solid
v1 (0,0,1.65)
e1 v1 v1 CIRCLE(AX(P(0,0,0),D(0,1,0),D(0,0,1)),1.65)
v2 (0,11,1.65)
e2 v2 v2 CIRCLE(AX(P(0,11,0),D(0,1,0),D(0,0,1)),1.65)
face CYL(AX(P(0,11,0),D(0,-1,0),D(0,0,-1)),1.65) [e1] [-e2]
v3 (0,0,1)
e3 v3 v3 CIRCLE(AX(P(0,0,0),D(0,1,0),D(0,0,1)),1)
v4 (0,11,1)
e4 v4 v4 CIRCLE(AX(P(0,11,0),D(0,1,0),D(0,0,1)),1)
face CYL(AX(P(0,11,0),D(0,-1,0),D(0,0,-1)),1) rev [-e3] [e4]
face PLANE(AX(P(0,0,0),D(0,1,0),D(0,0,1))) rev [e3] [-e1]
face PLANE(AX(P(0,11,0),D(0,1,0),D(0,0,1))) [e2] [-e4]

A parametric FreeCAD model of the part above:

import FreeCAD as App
import Part
import Sketcher

V = App.Vector
Q = App.Units.Quantity

doc = App.newDocument("Part")
params = doc.addObject("Spreadsheet::Sheet", "Params")
for row, (alias, value) in enumerate([
    ("sketch1_diameter", "2 mm"),
    ("sketch1_diameter2", "3.3 mm"),
    ("pad1_length", "11 mm"),
], start=1):
    params.set(f"A{row}", alias)
    params.set(f"B{row}", "=" + value)
    params.setAlias(f"B{row}", alias)

body = doc.addObject("PartDesign::Body", "Body")

sketch1 = body.newObject("Sketcher::SketchObject", "Sketch")
sketch1.AttachmentSupport = (doc.getObject("XZ_Plane"), [""])
sketch1.MapMode = "FlatFace"
sketch1.addGeometry(Part.Circle(V(0, 0, 0), V(0, 0, 1), 1.6), False)
sketch1.addGeometry(Part.Circle(V(0, 0, 0), V(0, 0, 1), 1), False)
sketch1.addConstraint(Sketcher.Constraint("Coincident", 0, 3, -1, 1))
sketch1.addConstraint(Sketcher.Constraint("Coincident", 1, 3, -1, 1))
sketch1.addConstraint(Sketcher.Constraint("Diameter", 1, Q("2 mm")))
sketch1.addConstraint(Sketcher.Constraint("Diameter", 0, Q("3.3 mm")))
sketch1.setExpression("Constraints[2]", "Params.sketch1_diameter")
sketch1.setExpression("Constraints[3]", "Params.sketch1_diameter2")
pad1 = body.newObject("PartDesign::Pad", "Pad")
pad1.Profile = sketch1
pad1.setExpression("Length", "Params.pad1_length")
pad1.Reversed = True

doc.recompute()
